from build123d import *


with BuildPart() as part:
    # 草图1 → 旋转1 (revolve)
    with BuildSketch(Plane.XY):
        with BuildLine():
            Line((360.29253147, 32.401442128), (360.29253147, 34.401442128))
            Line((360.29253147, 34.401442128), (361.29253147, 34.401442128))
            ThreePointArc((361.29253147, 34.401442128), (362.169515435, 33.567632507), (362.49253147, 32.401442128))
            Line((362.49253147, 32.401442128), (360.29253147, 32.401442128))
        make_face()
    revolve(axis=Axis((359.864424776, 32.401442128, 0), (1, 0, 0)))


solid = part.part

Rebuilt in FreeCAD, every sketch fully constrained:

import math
import FreeCAD as App
import Part
import Sketcher
Q = App.Units.Quantity

doc = App.newDocument("Part")
body = doc.addObject("PartDesign::Body", "Body")

sketch1 = body.newObject("Sketcher::SketchObject", "Sketch")
sketch1.AttachmentSupport = (doc.getObject("XY_Plane"), [""])
sketch1.MapMode = "FlatFace"
sketch1.addGeometry([
    Part.LineSegment(App.Vector(360.3, 34.4, 0), App.Vector(360.3, 32.4, 0)),
    Part.LineSegment(App.Vector(360.3, 32.4, 0), App.Vector(362.5, 32.4, 0)),
    Part.ArcOfCircle(Part.Circle(App.Vector(360.2, 32.4, 0), App.Vector(0, 0, 1), 2.3), math.radians(0), math.radians(62)),
    Part.LineSegment(App.Vector(361.3, 34.4, 0), App.Vector(360.3, 34.4, 0)),
], False)
sketch1.addGeometry(Part.LineSegment(App.Vector(360.2, 32.4, 0), App.Vector(362.5, 32.4, 0)), True)
sketch1.addConstraint([
    Sketcher.Constraint("Coincident", 0, 2, 1, 1),
    Sketcher.Constraint("Coincident", 1, 2, 2, 1),
    Sketcher.Constraint("Coincident", 2, 2, 3, 1),
    Sketcher.Constraint("Coincident", 3, 2, 0, 1),
    Sketcher.Constraint("Vertical", 0),
    Sketcher.Constraint("Horizontal", 1),
    Sketcher.Constraint("Horizontal", 3),
    Sketcher.Constraint("Horizontal", 4),
    Sketcher.Constraint("Coincident", 4, 1, 2, 3),
    Sketcher.Constraint("Coincident", 4, 2, 1, 2),
    Sketcher.Constraint("DistanceX", 3, 2, 3, 1, Q("1 mm")),
    Sketcher.Constraint("DistanceY", 0, 2, 0, 1, Q("2 mm")),
    Sketcher.Constraint("DistanceX", 1, 1, 1, 2, Q("2.2 mm")),
    Sketcher.Constraint("DistanceX", -1, 1, 0, 2, Q("360.292531 mm")),
    Sketcher.Constraint("DistanceY", -1, 1, 2, 3, Q("32.401442 mm")),
])
revolution = body.newObject("PartDesign::Revolution", "Revolution")
revolution.Profile = sketch1
revolution.ReferenceAxis = (sketch1, ["Axis0"])
revolution.Angle = 360

doc.recompute()
